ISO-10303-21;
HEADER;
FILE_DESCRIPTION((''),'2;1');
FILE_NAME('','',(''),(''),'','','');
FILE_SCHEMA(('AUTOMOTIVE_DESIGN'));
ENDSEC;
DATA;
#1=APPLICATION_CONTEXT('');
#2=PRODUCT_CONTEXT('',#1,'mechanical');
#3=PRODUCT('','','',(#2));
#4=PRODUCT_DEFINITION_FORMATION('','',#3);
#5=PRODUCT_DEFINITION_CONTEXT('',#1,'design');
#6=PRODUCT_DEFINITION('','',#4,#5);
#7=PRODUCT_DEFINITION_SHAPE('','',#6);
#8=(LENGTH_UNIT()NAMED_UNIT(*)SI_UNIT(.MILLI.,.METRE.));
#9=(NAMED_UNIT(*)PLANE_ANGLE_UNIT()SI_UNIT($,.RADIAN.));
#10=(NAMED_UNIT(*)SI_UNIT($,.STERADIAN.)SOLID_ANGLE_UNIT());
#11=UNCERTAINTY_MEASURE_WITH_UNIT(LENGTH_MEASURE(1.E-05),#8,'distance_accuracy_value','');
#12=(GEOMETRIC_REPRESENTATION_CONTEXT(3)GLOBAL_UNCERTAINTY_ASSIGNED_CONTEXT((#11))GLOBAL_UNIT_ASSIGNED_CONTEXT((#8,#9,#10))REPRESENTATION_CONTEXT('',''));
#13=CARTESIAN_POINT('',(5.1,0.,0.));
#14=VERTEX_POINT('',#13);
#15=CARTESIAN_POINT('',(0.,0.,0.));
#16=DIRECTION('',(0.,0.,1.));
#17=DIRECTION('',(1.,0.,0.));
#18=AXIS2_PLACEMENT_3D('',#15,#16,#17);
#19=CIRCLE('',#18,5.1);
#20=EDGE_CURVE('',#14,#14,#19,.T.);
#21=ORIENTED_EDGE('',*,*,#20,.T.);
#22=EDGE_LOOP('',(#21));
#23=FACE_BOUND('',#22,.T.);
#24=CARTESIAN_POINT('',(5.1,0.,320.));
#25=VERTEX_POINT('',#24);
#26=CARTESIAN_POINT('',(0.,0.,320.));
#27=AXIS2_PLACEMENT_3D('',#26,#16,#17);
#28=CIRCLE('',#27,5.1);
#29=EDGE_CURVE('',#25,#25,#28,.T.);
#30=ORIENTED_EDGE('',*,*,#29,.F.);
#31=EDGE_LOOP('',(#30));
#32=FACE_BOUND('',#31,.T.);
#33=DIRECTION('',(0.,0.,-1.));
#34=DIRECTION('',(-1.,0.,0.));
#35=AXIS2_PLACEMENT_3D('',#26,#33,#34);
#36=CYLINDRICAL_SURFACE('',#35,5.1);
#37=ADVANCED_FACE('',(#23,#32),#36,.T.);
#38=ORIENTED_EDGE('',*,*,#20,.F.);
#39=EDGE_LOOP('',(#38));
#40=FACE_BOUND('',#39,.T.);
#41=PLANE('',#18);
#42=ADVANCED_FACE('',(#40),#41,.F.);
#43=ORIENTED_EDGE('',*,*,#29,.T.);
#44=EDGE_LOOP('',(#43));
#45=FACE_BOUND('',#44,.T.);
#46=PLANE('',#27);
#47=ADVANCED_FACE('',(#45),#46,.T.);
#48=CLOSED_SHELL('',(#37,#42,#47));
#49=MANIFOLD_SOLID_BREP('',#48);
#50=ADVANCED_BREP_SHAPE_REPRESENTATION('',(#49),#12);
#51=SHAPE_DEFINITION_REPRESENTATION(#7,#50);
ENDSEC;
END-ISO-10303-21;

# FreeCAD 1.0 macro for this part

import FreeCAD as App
import Part
import Sketcher

V = App.Vector

doc = App.newDocument("Part")
params = doc.addObject("Spreadsheet::Sheet", "Params")
for row, (alias, value) in enumerate([
    ("sketch1_diameter", "10.2 mm"),
    ("pad1_length", "320 mm"),
], start=1):
    params.set(f"A{row}", alias)
    params.set(f"B{row}", "=" + value)
    params.setAlias(f"B{row}", alias)

body = doc.addObject("PartDesign::Body", "Body")

# Sketch on XY plane
sketch1 = body.newObject("Sketcher::SketchObject", "Sketch")
sketch1.AttachmentSupport = (doc.getObject("XY_Plane"), [""])
sketch1.MapMode = "FlatFace"
sketch1.addGeometry(Part.Circle(V(0, 0, 0), V(0, 0, 1), 5.1), False)
sketch1.addConstraint(Sketcher.Constraint("Coincident", 0, 3, -1, 1))
sketch1.addConstraint(Sketcher.Constraint("Diameter", 0, 10.2))
sketch1.setExpression("Constraints[1]", "Params.sketch1_diameter")
pad1 = body.newObject("PartDesign::Pad", "Pad")
pad1.Profile = sketch1
pad1.setExpression("Length", "Params.pad1_length")

doc.recompute()
